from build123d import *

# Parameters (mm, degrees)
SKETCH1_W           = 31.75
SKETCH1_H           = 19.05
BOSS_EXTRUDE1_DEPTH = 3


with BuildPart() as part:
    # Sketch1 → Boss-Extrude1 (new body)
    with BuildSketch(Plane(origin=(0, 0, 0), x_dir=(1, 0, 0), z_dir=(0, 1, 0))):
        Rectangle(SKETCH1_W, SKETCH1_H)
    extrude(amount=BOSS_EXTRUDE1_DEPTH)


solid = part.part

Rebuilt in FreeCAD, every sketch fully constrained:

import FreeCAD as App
import Part
import Sketcher

V = App.Vector
Q = App.Units.Quantity


def add_polygon(sketch, points):
    """Adds a closed chain of lines whose ends are joined by coincident constraints."""
    first, n = sketch.GeometryCount, len(points)
    for a, b in zip(points, points[1:] + points[:1]):
        sketch.addGeometry(Part.LineSegment(App.Vector(*a, 0), App.Vector(*b, 0)), False)
    for i in range(n):
        sketch.addConstraint(Sketcher.Constraint("Coincident", first + i, 2, first + (i + 1) % n, 1))

doc = App.newDocument("Part")
body = doc.addObject("PartDesign::Body", "Body")

# Sketch on XZ plane
sketch1 = doc.addObject("Sketcher::SketchObject", "Sketch")
body.addObject(sketch1)
sketch1.AttachmentSupport = (doc.XZ_Plane, [""])
sketch1.MapMode = "FlatFace"
add_polygon(sketch1, [(-16, -10), (-16, 10), (16, 10), (16, -10)])  # lines 0-3
sketch1.addConstraint(Sketcher.Constraint("Vertical", 0))
sketch1.addConstraint(Sketcher.Constraint("Horizontal", 1))
sketch1.addConstraint(Sketcher.Constraint("Vertical", 2))
sketch1.addConstraint(Sketcher.Constraint("Horizontal", 3))
sketch1.addConstraint(Sketcher.Constraint("Symmetric", 0, 2, 2, 2, -1, 1))
sketch1.addConstraint(Sketcher.Constraint("DistanceX", 1, 1, 1, 2, Q("1.25 in")))
sketch1.addConstraint(Sketcher.Constraint("DistanceY", 0, 1, 0, 2, Q("0.75 in")))
pad1 = doc.addObject("PartDesign::Pad", "Pad")
body.addObject(pad1)
pad1.Profile = sketch1
pad1.Length = 3
pad1.Reversed = True

doc.recompute()
